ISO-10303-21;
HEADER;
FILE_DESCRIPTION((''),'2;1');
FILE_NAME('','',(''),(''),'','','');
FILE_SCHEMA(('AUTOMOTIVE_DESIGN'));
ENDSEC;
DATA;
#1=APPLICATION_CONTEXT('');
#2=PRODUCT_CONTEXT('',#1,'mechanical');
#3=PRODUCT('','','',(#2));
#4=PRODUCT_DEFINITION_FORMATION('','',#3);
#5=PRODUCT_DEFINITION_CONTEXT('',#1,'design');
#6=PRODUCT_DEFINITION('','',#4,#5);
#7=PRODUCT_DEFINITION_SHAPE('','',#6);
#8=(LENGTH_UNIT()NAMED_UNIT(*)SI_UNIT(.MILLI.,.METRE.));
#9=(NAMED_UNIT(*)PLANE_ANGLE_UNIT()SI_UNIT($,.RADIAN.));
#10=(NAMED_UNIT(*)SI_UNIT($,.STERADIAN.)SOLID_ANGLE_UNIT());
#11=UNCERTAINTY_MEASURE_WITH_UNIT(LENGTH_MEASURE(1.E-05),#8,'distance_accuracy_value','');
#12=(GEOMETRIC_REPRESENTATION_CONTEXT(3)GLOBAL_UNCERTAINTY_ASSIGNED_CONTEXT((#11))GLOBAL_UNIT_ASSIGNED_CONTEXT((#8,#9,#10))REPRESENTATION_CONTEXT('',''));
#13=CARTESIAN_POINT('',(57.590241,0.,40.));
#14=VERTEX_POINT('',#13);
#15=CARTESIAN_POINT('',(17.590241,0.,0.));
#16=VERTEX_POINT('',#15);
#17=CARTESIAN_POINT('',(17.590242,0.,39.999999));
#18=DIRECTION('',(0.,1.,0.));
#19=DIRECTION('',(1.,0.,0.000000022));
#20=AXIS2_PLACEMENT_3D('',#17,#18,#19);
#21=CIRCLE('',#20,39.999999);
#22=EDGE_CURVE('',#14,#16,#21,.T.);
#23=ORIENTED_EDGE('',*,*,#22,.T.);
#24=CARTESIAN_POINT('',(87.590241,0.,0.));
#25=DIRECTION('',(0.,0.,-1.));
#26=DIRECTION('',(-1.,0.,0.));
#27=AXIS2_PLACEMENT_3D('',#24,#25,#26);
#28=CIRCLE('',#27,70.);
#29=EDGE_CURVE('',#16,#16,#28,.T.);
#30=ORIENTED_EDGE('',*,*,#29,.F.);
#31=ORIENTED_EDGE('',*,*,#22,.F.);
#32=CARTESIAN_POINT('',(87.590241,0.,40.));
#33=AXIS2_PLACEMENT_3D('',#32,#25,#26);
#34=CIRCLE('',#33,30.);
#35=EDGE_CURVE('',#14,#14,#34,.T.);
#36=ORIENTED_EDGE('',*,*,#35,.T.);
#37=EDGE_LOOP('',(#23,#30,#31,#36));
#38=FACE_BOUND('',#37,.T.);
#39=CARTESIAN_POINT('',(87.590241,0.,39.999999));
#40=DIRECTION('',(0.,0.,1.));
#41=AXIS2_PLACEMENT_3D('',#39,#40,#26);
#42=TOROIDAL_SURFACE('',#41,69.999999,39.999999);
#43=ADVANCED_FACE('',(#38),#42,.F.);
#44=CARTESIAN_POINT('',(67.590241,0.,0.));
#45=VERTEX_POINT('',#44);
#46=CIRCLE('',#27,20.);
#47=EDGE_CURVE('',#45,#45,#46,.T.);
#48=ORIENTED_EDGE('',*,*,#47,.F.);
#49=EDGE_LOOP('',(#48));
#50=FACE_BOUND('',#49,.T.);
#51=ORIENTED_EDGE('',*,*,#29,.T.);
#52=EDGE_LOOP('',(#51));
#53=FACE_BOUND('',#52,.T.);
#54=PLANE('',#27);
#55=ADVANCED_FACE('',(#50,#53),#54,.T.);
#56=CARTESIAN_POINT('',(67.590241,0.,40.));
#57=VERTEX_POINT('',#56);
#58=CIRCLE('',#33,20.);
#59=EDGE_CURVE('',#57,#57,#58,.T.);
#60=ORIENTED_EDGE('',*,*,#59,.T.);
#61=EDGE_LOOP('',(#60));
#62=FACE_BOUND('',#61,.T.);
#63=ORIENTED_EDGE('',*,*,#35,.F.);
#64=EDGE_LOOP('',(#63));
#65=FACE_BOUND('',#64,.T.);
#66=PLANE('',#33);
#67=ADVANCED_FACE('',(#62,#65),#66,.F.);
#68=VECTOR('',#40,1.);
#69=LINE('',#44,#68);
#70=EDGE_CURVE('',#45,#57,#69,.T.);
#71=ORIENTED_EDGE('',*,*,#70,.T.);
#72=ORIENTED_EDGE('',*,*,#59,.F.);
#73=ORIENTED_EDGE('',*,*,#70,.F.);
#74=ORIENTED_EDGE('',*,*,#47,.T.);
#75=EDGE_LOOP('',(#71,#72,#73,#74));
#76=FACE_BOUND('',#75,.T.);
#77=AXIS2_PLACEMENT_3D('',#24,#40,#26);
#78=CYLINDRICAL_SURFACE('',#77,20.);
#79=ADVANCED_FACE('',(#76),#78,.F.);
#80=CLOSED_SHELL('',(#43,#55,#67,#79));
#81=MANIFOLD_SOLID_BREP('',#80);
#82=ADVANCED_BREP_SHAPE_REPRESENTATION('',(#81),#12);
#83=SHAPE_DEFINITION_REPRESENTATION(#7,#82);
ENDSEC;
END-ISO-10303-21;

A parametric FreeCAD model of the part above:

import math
import FreeCAD as App
import Part
import Sketcher
from FreeCAD import Vector

doc = App.newDocument("Part")
body = doc.addObject("PartDesign::Body", "Body")

sketch1 = body.newObject("Sketcher::SketchObject", "Sketch")
sketch1.AttachmentSupport = (doc.getObject("XZ_Plane"), [""])
sketch1.MapMode = "FlatFace"
sketch1.addGeometry([
    Part.LineSegment(Vector(67.590241, 40, 0), Vector(57.590241, 40, 0)),
    Part.ArcOfCircle(Part.Circle(Vector(17.590242, 39.999999, 0), Vector(0, 0, 1), 39.999999), math.radians(-90.000001), math.radians(0.000001)),
    Part.LineSegment(Vector(17.590241, 0, 0), Vector(67.590241, 0, 0)),
    Part.LineSegment(Vector(67.590241, 0, 0), Vector(67.590241, 40, 0)),
], False)
sketch1.addGeometry(Part.LineSegment(Vector(87.590241, 40, 0), Vector(87.590241, 0, 0)), True)
sketch1.addConstraint([
    Sketcher.Constraint("Coincident", 0, 2, 1, 2),
    Sketcher.Constraint("Tangent", 1, 1, 2, 1),
    Sketcher.Constraint("Coincident", 2, 2, 3, 1),
    Sketcher.Constraint("Coincident", 3, 2, 0, 1),
    Sketcher.Constraint("Horizontal", 0),
    Sketcher.Constraint("Horizontal", 2),
    Sketcher.Constraint("Vertical", 3),
    Sketcher.Constraint("Vertical", 4),
    Sketcher.Constraint("PointOnObject", 1, 1, -1),
    Sketcher.Constraint("PointOnObject", 4, 2, -1),
    Sketcher.Constraint("Horizontal", 1, 3, 0, 2),
    Sketcher.Constraint("Horizontal", 3, 2, 4, 1),
    Sketcher.Constraint("Radius", 1, 39.999999),
    Sketcher.Constraint("DistanceX", 0, 2, 0, 1, 10.0),
    Sketcher.Constraint("DistanceX", 3, 2, 4, 1, 20.0),
    Sketcher.Constraint("DistanceX", -1, 1, 1, 3, 17.590242),
])
revolution = body.newObject("PartDesign::Revolution", "Revolution")
revolution.Profile = sketch1
revolution.ReferenceAxis = (sketch1, ["Axis0"])
revolution.Angle = 360

doc.recompute()
